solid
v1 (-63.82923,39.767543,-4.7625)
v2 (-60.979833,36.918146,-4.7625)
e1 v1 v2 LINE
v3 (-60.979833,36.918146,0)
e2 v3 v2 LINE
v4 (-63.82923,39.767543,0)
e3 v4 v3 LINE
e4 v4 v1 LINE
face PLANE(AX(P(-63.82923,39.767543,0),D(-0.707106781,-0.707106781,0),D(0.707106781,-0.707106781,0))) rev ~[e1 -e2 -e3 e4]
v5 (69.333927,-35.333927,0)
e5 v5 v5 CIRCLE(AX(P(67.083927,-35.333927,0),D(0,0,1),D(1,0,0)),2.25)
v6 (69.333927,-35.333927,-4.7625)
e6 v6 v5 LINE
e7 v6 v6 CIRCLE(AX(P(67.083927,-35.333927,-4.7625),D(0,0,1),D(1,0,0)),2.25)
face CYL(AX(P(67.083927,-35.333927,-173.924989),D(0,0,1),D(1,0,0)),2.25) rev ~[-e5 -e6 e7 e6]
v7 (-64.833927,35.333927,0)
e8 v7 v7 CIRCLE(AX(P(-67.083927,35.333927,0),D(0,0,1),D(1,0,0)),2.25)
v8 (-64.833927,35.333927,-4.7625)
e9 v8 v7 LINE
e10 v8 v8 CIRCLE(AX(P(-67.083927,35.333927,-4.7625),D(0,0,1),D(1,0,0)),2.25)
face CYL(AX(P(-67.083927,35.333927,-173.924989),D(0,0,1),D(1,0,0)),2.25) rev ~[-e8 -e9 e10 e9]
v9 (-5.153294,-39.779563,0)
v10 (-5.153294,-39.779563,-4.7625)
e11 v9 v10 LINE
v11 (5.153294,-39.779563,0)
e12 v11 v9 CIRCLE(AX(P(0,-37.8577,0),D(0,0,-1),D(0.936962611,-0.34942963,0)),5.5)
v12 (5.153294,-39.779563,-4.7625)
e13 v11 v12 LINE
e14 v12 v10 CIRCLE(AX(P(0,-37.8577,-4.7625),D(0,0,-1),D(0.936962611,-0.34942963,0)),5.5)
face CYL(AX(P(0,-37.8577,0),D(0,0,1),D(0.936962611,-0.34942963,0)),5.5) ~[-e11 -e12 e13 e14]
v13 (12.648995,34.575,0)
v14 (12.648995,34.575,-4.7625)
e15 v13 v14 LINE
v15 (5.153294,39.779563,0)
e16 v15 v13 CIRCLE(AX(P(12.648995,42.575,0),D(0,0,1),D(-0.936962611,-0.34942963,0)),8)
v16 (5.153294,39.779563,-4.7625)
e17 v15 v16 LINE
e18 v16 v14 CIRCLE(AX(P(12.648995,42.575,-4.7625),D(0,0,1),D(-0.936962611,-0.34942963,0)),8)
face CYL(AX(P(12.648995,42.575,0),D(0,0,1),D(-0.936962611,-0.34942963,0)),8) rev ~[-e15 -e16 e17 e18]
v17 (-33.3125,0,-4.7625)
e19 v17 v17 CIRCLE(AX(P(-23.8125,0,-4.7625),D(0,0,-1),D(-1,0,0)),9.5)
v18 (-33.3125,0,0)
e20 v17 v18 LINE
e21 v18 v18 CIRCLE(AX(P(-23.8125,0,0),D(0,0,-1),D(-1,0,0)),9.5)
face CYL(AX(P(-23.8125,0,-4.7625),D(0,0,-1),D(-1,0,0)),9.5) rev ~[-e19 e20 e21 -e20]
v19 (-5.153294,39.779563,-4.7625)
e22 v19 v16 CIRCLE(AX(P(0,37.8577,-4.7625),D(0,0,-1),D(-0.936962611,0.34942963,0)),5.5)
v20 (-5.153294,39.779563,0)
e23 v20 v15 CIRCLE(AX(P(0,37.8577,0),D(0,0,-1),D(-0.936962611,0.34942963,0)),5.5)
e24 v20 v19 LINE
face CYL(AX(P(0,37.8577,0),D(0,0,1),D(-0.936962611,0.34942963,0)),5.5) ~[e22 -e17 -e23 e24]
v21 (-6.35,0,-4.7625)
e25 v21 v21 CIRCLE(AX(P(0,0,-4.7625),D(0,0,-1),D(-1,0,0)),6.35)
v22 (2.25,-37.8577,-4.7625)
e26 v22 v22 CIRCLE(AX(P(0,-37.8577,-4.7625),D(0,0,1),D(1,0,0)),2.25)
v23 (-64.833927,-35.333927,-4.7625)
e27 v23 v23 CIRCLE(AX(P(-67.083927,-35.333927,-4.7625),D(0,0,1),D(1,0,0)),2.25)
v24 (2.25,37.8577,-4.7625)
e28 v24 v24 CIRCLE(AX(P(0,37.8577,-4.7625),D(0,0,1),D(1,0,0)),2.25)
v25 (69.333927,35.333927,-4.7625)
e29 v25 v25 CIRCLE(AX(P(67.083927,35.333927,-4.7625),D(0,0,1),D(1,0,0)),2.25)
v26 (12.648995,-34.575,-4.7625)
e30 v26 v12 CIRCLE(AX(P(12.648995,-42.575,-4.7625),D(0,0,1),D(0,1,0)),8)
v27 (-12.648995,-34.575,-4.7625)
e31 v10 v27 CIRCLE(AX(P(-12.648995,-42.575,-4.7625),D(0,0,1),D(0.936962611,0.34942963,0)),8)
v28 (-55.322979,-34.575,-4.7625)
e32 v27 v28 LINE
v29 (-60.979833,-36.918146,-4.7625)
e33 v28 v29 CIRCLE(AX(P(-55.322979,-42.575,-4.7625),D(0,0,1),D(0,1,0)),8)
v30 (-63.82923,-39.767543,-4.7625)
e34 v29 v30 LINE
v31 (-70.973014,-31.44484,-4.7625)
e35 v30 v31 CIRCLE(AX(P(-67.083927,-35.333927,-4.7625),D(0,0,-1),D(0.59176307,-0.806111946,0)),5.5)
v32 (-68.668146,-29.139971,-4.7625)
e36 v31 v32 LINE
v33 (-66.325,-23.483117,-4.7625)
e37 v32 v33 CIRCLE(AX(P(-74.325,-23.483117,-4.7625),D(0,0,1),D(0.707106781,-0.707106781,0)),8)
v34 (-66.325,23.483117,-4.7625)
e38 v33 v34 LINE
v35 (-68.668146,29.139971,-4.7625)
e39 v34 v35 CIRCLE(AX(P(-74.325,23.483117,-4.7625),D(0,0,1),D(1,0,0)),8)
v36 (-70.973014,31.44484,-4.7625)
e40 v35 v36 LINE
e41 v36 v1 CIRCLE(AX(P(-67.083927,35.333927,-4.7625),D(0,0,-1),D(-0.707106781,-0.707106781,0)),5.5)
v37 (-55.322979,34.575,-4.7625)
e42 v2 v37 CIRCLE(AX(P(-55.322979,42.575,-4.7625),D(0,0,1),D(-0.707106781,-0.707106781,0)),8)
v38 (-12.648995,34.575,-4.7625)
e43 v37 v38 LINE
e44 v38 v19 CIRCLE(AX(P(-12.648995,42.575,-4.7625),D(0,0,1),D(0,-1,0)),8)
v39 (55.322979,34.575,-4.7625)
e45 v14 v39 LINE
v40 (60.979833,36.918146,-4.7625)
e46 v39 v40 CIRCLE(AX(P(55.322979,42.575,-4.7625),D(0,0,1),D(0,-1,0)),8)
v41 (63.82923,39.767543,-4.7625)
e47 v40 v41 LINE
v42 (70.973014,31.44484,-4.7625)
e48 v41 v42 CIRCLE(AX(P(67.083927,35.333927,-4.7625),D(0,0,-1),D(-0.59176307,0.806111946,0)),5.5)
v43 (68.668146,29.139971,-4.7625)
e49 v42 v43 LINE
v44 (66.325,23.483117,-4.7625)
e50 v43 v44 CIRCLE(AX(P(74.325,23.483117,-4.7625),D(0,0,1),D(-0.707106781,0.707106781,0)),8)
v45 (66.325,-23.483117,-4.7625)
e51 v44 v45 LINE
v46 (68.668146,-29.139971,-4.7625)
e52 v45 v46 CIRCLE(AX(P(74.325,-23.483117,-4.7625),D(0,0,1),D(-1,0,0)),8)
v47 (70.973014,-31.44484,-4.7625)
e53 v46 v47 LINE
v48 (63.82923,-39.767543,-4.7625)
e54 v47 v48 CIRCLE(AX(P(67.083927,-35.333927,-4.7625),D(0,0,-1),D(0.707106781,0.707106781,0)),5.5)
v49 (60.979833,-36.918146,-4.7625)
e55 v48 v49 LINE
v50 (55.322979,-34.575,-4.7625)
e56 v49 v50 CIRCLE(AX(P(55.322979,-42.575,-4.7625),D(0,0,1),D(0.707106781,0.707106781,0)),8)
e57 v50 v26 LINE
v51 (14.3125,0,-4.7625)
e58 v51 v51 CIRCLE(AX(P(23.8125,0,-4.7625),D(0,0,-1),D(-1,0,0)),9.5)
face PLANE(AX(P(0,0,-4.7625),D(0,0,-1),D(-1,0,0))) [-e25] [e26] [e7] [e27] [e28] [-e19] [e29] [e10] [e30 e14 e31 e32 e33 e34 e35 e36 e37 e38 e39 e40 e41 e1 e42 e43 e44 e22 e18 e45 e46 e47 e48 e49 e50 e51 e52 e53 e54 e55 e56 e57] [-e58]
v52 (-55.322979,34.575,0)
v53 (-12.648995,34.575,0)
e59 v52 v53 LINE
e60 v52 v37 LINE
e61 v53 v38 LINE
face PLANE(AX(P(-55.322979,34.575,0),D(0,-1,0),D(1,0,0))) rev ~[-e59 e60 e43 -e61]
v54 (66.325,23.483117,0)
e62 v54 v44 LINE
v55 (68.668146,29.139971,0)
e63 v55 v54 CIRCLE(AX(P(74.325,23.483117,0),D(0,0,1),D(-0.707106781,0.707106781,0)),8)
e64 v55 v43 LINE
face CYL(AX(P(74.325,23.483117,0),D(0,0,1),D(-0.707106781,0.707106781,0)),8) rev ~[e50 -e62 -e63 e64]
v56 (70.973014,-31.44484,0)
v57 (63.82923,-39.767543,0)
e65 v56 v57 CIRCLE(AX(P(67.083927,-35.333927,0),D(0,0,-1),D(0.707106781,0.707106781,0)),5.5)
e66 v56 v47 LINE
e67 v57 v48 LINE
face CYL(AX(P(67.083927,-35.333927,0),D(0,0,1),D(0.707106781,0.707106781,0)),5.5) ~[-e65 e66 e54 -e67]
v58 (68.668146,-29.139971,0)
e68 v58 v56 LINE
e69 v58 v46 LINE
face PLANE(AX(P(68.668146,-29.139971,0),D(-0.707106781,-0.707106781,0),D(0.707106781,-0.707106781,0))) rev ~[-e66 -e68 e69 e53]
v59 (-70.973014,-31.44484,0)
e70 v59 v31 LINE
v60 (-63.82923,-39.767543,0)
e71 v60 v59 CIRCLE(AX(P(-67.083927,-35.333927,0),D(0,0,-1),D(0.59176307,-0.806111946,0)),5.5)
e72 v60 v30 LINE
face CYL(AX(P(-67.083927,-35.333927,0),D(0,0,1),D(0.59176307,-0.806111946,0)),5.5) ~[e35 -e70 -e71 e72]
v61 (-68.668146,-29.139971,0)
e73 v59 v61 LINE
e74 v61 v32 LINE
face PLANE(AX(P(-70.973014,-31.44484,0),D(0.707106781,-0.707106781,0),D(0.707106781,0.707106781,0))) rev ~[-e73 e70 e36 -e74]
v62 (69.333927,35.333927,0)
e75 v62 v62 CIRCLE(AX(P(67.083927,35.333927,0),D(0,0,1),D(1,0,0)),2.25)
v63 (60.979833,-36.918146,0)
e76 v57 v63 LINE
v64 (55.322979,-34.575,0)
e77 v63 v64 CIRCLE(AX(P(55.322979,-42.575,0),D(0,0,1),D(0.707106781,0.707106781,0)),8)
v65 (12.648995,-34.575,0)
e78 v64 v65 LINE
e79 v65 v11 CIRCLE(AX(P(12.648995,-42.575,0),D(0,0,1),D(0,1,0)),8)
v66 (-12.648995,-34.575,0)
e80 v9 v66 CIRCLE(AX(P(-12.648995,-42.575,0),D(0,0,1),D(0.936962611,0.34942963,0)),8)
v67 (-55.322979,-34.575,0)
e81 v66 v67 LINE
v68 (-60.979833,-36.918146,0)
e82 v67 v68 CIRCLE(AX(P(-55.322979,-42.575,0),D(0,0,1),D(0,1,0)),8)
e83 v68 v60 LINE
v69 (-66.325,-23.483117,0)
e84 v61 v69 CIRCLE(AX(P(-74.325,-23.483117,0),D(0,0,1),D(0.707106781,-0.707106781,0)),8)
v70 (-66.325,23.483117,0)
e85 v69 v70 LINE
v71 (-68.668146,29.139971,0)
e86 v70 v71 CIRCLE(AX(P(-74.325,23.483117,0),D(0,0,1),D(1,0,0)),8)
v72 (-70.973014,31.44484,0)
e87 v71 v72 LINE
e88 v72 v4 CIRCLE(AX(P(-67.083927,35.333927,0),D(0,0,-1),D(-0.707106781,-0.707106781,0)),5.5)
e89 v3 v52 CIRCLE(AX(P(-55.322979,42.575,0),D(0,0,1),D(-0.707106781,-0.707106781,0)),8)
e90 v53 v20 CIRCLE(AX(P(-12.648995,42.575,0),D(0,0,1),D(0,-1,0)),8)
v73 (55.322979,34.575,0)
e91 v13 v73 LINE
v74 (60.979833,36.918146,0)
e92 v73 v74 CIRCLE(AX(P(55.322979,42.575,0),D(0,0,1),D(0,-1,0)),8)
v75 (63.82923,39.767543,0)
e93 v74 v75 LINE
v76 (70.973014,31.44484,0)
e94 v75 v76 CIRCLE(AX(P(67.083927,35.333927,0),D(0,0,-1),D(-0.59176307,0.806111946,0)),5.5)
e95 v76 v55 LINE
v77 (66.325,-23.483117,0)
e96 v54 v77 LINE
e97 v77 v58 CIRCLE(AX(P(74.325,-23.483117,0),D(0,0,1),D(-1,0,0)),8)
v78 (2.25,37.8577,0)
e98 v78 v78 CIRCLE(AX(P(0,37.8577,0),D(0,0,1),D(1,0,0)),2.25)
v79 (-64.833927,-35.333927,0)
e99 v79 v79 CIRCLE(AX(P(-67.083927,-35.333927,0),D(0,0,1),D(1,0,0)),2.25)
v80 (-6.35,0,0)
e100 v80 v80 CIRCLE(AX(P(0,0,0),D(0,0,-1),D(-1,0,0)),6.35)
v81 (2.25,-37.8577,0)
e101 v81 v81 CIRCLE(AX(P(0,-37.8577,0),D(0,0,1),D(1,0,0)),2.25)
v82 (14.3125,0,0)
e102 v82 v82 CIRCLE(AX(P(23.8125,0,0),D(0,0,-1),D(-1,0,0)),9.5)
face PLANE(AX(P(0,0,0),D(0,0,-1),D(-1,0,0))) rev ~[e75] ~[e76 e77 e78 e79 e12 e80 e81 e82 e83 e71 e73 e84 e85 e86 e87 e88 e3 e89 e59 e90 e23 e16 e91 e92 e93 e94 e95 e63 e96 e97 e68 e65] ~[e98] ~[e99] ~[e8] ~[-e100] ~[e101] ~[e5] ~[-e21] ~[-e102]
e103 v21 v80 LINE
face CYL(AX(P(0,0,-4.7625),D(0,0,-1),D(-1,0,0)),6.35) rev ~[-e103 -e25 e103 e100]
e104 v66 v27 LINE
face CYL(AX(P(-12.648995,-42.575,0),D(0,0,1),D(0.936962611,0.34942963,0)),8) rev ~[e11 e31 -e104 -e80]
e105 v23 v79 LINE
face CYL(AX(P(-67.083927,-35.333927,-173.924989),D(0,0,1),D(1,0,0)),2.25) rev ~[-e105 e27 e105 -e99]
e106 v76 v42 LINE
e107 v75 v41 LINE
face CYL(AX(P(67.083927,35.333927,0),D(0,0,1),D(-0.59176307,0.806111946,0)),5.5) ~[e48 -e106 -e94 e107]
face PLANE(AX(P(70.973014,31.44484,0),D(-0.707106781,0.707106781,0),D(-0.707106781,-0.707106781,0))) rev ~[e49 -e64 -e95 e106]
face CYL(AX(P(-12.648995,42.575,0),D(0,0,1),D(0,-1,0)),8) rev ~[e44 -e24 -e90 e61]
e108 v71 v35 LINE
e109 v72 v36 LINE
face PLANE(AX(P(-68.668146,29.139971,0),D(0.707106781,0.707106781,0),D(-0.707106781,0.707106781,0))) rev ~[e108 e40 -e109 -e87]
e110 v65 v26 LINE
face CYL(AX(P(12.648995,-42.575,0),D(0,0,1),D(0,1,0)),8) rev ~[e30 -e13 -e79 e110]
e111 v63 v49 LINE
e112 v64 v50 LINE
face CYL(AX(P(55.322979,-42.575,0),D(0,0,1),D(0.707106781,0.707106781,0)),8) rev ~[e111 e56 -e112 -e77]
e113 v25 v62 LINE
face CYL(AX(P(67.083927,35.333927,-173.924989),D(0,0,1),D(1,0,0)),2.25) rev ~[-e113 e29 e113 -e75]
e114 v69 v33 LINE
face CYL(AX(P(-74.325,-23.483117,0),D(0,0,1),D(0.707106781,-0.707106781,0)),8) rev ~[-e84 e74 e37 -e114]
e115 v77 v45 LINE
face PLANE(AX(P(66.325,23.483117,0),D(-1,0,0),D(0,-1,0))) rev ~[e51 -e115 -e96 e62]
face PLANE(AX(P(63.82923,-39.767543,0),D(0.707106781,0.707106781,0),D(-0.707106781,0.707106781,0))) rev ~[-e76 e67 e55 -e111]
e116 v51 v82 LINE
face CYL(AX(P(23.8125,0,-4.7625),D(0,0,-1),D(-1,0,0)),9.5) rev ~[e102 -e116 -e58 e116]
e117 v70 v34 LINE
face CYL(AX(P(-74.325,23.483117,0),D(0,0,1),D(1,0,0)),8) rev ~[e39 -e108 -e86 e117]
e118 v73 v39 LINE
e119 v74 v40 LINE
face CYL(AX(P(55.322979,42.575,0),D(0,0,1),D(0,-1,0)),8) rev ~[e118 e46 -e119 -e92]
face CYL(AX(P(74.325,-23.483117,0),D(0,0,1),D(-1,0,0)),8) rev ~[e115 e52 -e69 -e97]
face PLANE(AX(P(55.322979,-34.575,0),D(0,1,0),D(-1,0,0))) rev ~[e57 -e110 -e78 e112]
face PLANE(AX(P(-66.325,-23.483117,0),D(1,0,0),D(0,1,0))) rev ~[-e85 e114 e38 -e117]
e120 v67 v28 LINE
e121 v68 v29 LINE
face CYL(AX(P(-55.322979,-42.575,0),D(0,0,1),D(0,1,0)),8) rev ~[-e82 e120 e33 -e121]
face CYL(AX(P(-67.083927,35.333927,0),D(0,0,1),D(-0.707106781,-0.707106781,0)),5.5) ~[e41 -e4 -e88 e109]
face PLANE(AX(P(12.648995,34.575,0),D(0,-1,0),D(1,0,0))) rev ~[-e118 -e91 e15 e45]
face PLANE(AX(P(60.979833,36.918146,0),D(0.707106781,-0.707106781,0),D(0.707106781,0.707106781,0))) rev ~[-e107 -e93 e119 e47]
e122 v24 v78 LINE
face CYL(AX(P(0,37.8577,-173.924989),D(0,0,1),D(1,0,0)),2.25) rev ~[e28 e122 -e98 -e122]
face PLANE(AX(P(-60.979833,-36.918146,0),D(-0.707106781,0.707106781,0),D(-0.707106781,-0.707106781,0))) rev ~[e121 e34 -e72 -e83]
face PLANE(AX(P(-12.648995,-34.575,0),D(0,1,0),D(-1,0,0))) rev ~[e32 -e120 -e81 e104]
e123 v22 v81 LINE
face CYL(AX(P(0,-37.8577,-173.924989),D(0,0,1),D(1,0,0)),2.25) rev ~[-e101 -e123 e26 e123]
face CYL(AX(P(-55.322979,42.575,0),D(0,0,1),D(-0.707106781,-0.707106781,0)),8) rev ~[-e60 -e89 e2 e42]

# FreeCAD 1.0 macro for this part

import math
import FreeCAD as App
import Part
import Sketcher
from FreeCAD import Vector
Q = App.Units.Quantity

doc = App.newDocument("Part")
body = doc.addObject("PartDesign::Body", "Body")

sketch1 = body.newObject("Sketcher::SketchObject", "Sketch")
sketch1.AttachmentSupport = (doc.getObject("XY_Plane"), [""])
sketch1.MapMode = "FlatFace"
sketch1.addGeometry([
    Part.ArcOfCircle(Part.Circle(Vector(74.3, 23.5, 0), Vector(0, 0, 1), 8), math.radians(135), math.radians(180)),
    Part.LineSegment(Vector(68.7, 29.1, 0), Vector(71, 31.4, 0)),
    Part.ArcOfCircle(Part.Circle(Vector(67.1, 35.3, 0), Vector(0, 0, 1), 5.5), math.radians(-45), math.radians(126)),
    Part.LineSegment(Vector(63.8, 39.8, 0), Vector(61, 36.9, 0)),
    Part.ArcOfCircle(Part.Circle(Vector(55.3, 42.6, 0), Vector(0, 0, 1), 8), math.radians(-90), math.radians(-45)),
    Part.LineSegment(Vector(55.3, 34.6, 0), Vector(12.6, 34.6, 0)),
    Part.ArcOfCircle(Part.Circle(Vector(12.6, 42.6, 0), Vector(0, 0, 1), 8), math.radians(-160), math.radians(-90)),
    Part.ArcOfCircle(Part.Circle(Vector(0, 37.9, 0), Vector(0, 0, 1), 5.5), math.radians(20), math.radians(160)),
    Part.ArcOfCircle(Part.Circle(Vector(-12.6, 42.6, 0), Vector(0, 0, 1), 8), math.radians(-90), math.radians(-20)),
    Part.LineSegment(Vector(-12.6, 34.6, 0), Vector(-55.3, 34.6, 0)),
    Part.ArcOfCircle(Part.Circle(Vector(-55.3, 42.6, 0), Vector(0, 0, 1), 8), math.radians(-135), math.radians(-90)),
    Part.LineSegment(Vector(-61, 36.9, 0), Vector(-63.8, 39.8, 0)),
    Part.ArcOfCircle(Part.Circle(Vector(-67.1, 35.3, 0), Vector(0, 0, 1), 5.5), math.radians(54), math.radians(225)),
    Part.LineSegment(Vector(-71, 31.4, 0), Vector(-68.7, 29.1, 0)),
    Part.ArcOfCircle(Part.Circle(Vector(-74.3, 23.5, 0), Vector(0, 0, 1), 8), math.radians(0), math.radians(45)),
    Part.LineSegment(Vector(-66.3, 23.5, 0), Vector(-66.3, -23.5, 0)),
    Part.ArcOfCircle(Part.Circle(Vector(-74.3, -23.5, 0), Vector(0, 0, 1), 8), math.radians(-45), math.radians(0)),
    Part.LineSegment(Vector(-68.7, -29.1, 0), Vector(-71, -31.4, 0)),
    Part.ArcOfCircle(Part.Circle(Vector(-67.1, -35.3, 0), Vector(0, 0, 1), 5.5), math.radians(135), math.radians(306)),
    Part.LineSegment(Vector(-63.8, -39.8, 0), Vector(-61, -36.9, 0)),
    Part.ArcOfCircle(Part.Circle(Vector(-55.3, -42.6, 0), Vector(0, 0, 1), 8), math.radians(90), math.radians(135)),
    Part.LineSegment(Vector(-55.3, -34.6, 0), Vector(-12.6, -34.6, 0)),
    Part.ArcOfCircle(Part.Circle(Vector(-12.6, -42.6, 0), Vector(0, 0, 1), 8), math.radians(20), math.radians(90)),
    Part.ArcOfCircle(Part.Circle(Vector(0, -37.9, 0), Vector(0, 0, 1), 5.5), math.radians(-160), math.radians(-20)),
    Part.ArcOfCircle(Part.Circle(Vector(12.6, -42.6, 0), Vector(0, 0, 1), 8), math.radians(90), math.radians(160)),
    Part.LineSegment(Vector(12.6, -34.6, 0), Vector(55.3, -34.6, 0)),
    Part.ArcOfCircle(Part.Circle(Vector(55.3, -42.6, 0), Vector(0, 0, 1), 8), math.radians(45), math.radians(90)),
    Part.LineSegment(Vector(61, -36.9, 0), Vector(63.8, -39.8, 0)),
    Part.ArcOfCircle(Part.Circle(Vector(67.1, -35.3, 0), Vector(0, 0, 1), 5.5), math.radians(-126), math.radians(45)),
    Part.LineSegment(Vector(71, -31.4, 0), Vector(68.7, -29.1, 0)),
    Part.ArcOfCircle(Part.Circle(Vector(74.3, -23.5, 0), Vector(0, 0, 1), 8), math.radians(180), math.radians(225)),
    Part.LineSegment(Vector(66.3, -23.5, 0), Vector(66.3, 23.5, 0)),
], False)
sketch1.addConstraint([
    Sketcher.Constraint("Tangent", 0, 1, 1, 1),
    Sketcher.Constraint("Tangent", 1, 2, 2, 1),
    Sketcher.Constraint("Coincident", 2, 2, 3, 1),
    Sketcher.Constraint("Tangent", 3, 2, 4, 2),
    Sketcher.Constraint("Tangent", 4, 1, 5, 1),
    Sketcher.Constraint("Tangent", 5, 2, 6, 2),
    Sketcher.Constraint("Tangent", 6, 1, 7, 1),
    Sketcher.Constraint("Tangent", 7, 2, 8, 2),
    Sketcher.Constraint("Tangent", 8, 1, 9, 1),
    Sketcher.Constraint("Tangent", 9, 2, 10, 2),
    Sketcher.Constraint("Tangent", 10, 1, 11, 1),
    Sketcher.Constraint("Coincident", 11, 2, 12, 1),
    Sketcher.Constraint("Tangent", 12, 2, 13, 1),
    Sketcher.Constraint("Tangent", 13, 2, 14, 2),
    Sketcher.Constraint("Tangent", 14, 1, 15, 1),
    Sketcher.Constraint("Tangent", 15, 2, 16, 2),
    Sketcher.Constraint("Tangent", 16, 1, 17, 1),
    Sketcher.Constraint("Tangent", 17, 2, 18, 1),
    Sketcher.Constraint("Coincident", 18, 2, 19, 1),
    Sketcher.Constraint("Tangent", 19, 2, 20, 2),
    Sketcher.Constraint("Tangent", 20, 1, 21, 1),
    Sketcher.Constraint("Tangent", 21, 2, 22, 2),
    Sketcher.Constraint("Tangent", 22, 1, 23, 1),
    Sketcher.Constraint("Tangent", 23, 2, 24, 2),
    Sketcher.Constraint("Tangent", 24, 1, 25, 1),
    Sketcher.Constraint("Tangent", 25, 2, 26, 2),
    Sketcher.Constraint("Tangent", 26, 1, 27, 1),
    Sketcher.Constraint("Coincident", 27, 2, 28, 1),
    Sketcher.Constraint("Tangent", 28, 2, 29, 1),
    Sketcher.Constraint("Tangent", 29, 2, 30, 2),
    Sketcher.Constraint("Tangent", 30, 1, 31, 1),
    Sketcher.Constraint("Tangent", 31, 2, 0, 2),
    Sketcher.Constraint("Horizontal", 5),
    Sketcher.Constraint("Horizontal", 9),
    Sketcher.Constraint("Vertical", 15),
    Sketcher.Constraint("Horizontal", 21),
    Sketcher.Constraint("Horizontal", 25),
    Sketcher.Constraint("Vertical", 31),
    Sketcher.Constraint("Equal", 0, 4),
    Sketcher.Constraint("Equal", 4, 6),
    Sketcher.Constraint("Equal", 2, 7),
    Sketcher.Constraint("Equal", 6, 8),
    Sketcher.Constraint("Equal", 8, 10),
    Sketcher.Constraint("Equal", 7, 12),
    Sketcher.Constraint("Equal", 10, 14),
    Sketcher.Constraint("Equal", 14, 16),
    Sketcher.Constraint("Equal", 12, 18),
    Sketcher.Constraint("Equal", 16, 20),
    Sketcher.Constraint("Equal", 20, 22),
    Sketcher.Constraint("Equal", 18, 23),
    Sketcher.Constraint("Equal", 22, 24),
    Sketcher.Constraint("Equal", 24, 26),
    Sketcher.Constraint("Equal", 23, 28),
    Sketcher.Constraint("Equal", 26, 30),
    Sketcher.Constraint("Symmetric", 0, 3, 16, 3, -1, 1),
    Sketcher.Constraint("Symmetric", 2, 3, 18, 3, -1, 1),
    Sketcher.Constraint("Symmetric", 4, 3, 20, 3, -1, 1),
    Sketcher.Constraint("Symmetric", 7, 3, 23, 3, -1, 1),
    Sketcher.Constraint("Symmetric", 10, 3, 26, 3, -1, 1),
    Sketcher.Constraint("Symmetric", 12, 3, 28, 3, -1, 1),
    Sketcher.Constraint("Symmetric", 6, 3, 8, 3, -2),
    Sketcher.Constraint("Symmetric", 2, 3, 12, 3, -2),
    Sketcher.Constraint("Symmetric", 3, 2, 10, 1, -2),
    Sketcher.Constraint("Parallel", 1, 3),
    Sketcher.Constraint("Perpendicular", 3, 11),
    Sketcher.Constraint("Parallel", 11, 13),
    Sketcher.Constraint("Parallel", 17, 19),
    Sketcher.Constraint("Perpendicular", 19, 27),
    Sketcher.Constraint("Parallel", 27, 29),
    Sketcher.Constraint("Radius", 0, Q("8 mm")),
    Sketcher.Constraint("Radius", 2, Q("5.5 mm")),
    Sketcher.Constraint("DistanceY", 20, 3, 10, 3, Q("85.15 mm")),
    Sketcher.Constraint("DistanceX", -1, 1, 0, 3, Q("74.325 mm")),
    Sketcher.Constraint("DistanceY", -1, 1, 7, 3, Q("37.8577 mm")),
    Sketcher.Constraint("DistanceX", 5, 2, 5, 1, Q("42.673984 mm")),
    Sketcher.Constraint("DistanceY", 15, 2, 15, 1, Q("46.966234 mm")),
    Sketcher.Constraint("DistanceY", -1, 1, 1, 2, Q("31.44484 mm")),
])
pad1 = body.newObject("PartDesign::Pad", "Pad")
pad1.Profile = sketch1
pad1.Length = 4.7625
pad1.Reversed = True

sketch2 = body.newObject("Sketcher::SketchObject", "Sketch001")
sketch2.AttachmentSupport = (doc.getObject("XY_Plane"), [""])
sketch2.MapMode = "FlatFace"
sketch2.AttachmentOffset = App.Placement(Vector(0, 0, -4.7625), App.Rotation())
sketch2.addGeometry([
    Part.Circle(Vector(67.1, -35.3, 0), Vector(0, 0, 1), 2.2),
    Part.Circle(Vector(67.1, 35.3, 0), Vector(0, 0, 1), 2.2),
    Part.Circle(Vector(0, 37.9, 0), Vector(0, 0, 1), 2.2),
    Part.Circle(Vector(-67.1, 35.3, 0), Vector(0, 0, 1), 2.2),
    Part.Circle(Vector(-67.1, -35.3, 0), Vector(0, 0, 1), 2.2),
    Part.Circle(Vector(0, -37.9, 0), Vector(0, 0, 1), 2.2),
], False)
sketch2.addConstraint([
    Sketcher.Constraint("Equal", 0, 1),
    Sketcher.Constraint("Equal", 1, 2),
    Sketcher.Constraint("Equal", 2, 3),
    Sketcher.Constraint("Equal", 3, 4),
    Sketcher.Constraint("Equal", 4, 5),
    Sketcher.Constraint("Symmetric", 0, 3, 3, 3, -1, 1),
    Sketcher.Constraint("Symmetric", 1, 3, 4, 3, -1, 1),
    Sketcher.Constraint("Symmetric", 2, 3, 5, 3, -1, 1),
    Sketcher.Constraint("Symmetric", 1, 3, 3, 3, -2),
    Sketcher.Constraint("PointOnObject", 2, 3, -2),
    Sketcher.Constraint("Diameter", 0, Q("4.5 mm")),
    Sketcher.Constraint("DistanceY", -1, 1, 2, 3, Q("37.8577 mm")),
    Sketcher.Constraint("DistanceX", -1, 1, 0, 3, Q("67.083927 mm")),
    Sketcher.Constraint("DistanceY", 0, 3, -1, 1, Q("35.333927 mm")),
])
doc.recompute()
hole = body.newObject("PartDesign::Hole", "Hole")
hole.Profile = sketch2
hole.ThreadType = "None"
hole.Diameter = 4.5
hole.DepthType = "ThroughAll"
hole.Reversed = True

sketch3 = body.newObject("Sketcher::SketchObject", "Sketch002")
sketch3.AttachmentSupport = (doc.getObject("XY_Plane"), [""])
sketch3.MapMode = "FlatFace"
sketch3.AttachmentOffset = App.Placement(Vector(0, 0, -4.7625), App.Rotation())
sketch3.addGeometry([
    Part.Circle(Vector(0, 0, 0), Vector(0, 0, 1), 6),
    Part.Circle(Vector(24, 0, 0), Vector(0, 0, 1), 10),
    Part.Circle(Vector(-24, 0, 0), Vector(0, 0, 1), 10),
], False)
sketch3.addConstraint([
    Sketcher.Constraint("Coincident", 0, 3, -1, 1),
    Sketcher.Constraint("Equal", 1, 2),
    Sketcher.Constraint("Symmetric", 1, 3, 2, 3, -1, 1),
    Sketcher.Constraint("PointOnObject", 1, 3, -1),
    Sketcher.Constraint("Diameter", 1, Q("19 mm")),
    Sketcher.Constraint("Diameter", 0, Q("12.7 mm")),
    Sketcher.Constraint("DistanceX", 2, 3, 1, 3, Q("47.625 mm")),
])
pocket1 = body.newObject("PartDesign::Pocket", "Pocket")
pocket1.Profile = sketch3
pocket1.Type = "ThroughAll"
pocket1.Reversed = True

doc.recompute()
